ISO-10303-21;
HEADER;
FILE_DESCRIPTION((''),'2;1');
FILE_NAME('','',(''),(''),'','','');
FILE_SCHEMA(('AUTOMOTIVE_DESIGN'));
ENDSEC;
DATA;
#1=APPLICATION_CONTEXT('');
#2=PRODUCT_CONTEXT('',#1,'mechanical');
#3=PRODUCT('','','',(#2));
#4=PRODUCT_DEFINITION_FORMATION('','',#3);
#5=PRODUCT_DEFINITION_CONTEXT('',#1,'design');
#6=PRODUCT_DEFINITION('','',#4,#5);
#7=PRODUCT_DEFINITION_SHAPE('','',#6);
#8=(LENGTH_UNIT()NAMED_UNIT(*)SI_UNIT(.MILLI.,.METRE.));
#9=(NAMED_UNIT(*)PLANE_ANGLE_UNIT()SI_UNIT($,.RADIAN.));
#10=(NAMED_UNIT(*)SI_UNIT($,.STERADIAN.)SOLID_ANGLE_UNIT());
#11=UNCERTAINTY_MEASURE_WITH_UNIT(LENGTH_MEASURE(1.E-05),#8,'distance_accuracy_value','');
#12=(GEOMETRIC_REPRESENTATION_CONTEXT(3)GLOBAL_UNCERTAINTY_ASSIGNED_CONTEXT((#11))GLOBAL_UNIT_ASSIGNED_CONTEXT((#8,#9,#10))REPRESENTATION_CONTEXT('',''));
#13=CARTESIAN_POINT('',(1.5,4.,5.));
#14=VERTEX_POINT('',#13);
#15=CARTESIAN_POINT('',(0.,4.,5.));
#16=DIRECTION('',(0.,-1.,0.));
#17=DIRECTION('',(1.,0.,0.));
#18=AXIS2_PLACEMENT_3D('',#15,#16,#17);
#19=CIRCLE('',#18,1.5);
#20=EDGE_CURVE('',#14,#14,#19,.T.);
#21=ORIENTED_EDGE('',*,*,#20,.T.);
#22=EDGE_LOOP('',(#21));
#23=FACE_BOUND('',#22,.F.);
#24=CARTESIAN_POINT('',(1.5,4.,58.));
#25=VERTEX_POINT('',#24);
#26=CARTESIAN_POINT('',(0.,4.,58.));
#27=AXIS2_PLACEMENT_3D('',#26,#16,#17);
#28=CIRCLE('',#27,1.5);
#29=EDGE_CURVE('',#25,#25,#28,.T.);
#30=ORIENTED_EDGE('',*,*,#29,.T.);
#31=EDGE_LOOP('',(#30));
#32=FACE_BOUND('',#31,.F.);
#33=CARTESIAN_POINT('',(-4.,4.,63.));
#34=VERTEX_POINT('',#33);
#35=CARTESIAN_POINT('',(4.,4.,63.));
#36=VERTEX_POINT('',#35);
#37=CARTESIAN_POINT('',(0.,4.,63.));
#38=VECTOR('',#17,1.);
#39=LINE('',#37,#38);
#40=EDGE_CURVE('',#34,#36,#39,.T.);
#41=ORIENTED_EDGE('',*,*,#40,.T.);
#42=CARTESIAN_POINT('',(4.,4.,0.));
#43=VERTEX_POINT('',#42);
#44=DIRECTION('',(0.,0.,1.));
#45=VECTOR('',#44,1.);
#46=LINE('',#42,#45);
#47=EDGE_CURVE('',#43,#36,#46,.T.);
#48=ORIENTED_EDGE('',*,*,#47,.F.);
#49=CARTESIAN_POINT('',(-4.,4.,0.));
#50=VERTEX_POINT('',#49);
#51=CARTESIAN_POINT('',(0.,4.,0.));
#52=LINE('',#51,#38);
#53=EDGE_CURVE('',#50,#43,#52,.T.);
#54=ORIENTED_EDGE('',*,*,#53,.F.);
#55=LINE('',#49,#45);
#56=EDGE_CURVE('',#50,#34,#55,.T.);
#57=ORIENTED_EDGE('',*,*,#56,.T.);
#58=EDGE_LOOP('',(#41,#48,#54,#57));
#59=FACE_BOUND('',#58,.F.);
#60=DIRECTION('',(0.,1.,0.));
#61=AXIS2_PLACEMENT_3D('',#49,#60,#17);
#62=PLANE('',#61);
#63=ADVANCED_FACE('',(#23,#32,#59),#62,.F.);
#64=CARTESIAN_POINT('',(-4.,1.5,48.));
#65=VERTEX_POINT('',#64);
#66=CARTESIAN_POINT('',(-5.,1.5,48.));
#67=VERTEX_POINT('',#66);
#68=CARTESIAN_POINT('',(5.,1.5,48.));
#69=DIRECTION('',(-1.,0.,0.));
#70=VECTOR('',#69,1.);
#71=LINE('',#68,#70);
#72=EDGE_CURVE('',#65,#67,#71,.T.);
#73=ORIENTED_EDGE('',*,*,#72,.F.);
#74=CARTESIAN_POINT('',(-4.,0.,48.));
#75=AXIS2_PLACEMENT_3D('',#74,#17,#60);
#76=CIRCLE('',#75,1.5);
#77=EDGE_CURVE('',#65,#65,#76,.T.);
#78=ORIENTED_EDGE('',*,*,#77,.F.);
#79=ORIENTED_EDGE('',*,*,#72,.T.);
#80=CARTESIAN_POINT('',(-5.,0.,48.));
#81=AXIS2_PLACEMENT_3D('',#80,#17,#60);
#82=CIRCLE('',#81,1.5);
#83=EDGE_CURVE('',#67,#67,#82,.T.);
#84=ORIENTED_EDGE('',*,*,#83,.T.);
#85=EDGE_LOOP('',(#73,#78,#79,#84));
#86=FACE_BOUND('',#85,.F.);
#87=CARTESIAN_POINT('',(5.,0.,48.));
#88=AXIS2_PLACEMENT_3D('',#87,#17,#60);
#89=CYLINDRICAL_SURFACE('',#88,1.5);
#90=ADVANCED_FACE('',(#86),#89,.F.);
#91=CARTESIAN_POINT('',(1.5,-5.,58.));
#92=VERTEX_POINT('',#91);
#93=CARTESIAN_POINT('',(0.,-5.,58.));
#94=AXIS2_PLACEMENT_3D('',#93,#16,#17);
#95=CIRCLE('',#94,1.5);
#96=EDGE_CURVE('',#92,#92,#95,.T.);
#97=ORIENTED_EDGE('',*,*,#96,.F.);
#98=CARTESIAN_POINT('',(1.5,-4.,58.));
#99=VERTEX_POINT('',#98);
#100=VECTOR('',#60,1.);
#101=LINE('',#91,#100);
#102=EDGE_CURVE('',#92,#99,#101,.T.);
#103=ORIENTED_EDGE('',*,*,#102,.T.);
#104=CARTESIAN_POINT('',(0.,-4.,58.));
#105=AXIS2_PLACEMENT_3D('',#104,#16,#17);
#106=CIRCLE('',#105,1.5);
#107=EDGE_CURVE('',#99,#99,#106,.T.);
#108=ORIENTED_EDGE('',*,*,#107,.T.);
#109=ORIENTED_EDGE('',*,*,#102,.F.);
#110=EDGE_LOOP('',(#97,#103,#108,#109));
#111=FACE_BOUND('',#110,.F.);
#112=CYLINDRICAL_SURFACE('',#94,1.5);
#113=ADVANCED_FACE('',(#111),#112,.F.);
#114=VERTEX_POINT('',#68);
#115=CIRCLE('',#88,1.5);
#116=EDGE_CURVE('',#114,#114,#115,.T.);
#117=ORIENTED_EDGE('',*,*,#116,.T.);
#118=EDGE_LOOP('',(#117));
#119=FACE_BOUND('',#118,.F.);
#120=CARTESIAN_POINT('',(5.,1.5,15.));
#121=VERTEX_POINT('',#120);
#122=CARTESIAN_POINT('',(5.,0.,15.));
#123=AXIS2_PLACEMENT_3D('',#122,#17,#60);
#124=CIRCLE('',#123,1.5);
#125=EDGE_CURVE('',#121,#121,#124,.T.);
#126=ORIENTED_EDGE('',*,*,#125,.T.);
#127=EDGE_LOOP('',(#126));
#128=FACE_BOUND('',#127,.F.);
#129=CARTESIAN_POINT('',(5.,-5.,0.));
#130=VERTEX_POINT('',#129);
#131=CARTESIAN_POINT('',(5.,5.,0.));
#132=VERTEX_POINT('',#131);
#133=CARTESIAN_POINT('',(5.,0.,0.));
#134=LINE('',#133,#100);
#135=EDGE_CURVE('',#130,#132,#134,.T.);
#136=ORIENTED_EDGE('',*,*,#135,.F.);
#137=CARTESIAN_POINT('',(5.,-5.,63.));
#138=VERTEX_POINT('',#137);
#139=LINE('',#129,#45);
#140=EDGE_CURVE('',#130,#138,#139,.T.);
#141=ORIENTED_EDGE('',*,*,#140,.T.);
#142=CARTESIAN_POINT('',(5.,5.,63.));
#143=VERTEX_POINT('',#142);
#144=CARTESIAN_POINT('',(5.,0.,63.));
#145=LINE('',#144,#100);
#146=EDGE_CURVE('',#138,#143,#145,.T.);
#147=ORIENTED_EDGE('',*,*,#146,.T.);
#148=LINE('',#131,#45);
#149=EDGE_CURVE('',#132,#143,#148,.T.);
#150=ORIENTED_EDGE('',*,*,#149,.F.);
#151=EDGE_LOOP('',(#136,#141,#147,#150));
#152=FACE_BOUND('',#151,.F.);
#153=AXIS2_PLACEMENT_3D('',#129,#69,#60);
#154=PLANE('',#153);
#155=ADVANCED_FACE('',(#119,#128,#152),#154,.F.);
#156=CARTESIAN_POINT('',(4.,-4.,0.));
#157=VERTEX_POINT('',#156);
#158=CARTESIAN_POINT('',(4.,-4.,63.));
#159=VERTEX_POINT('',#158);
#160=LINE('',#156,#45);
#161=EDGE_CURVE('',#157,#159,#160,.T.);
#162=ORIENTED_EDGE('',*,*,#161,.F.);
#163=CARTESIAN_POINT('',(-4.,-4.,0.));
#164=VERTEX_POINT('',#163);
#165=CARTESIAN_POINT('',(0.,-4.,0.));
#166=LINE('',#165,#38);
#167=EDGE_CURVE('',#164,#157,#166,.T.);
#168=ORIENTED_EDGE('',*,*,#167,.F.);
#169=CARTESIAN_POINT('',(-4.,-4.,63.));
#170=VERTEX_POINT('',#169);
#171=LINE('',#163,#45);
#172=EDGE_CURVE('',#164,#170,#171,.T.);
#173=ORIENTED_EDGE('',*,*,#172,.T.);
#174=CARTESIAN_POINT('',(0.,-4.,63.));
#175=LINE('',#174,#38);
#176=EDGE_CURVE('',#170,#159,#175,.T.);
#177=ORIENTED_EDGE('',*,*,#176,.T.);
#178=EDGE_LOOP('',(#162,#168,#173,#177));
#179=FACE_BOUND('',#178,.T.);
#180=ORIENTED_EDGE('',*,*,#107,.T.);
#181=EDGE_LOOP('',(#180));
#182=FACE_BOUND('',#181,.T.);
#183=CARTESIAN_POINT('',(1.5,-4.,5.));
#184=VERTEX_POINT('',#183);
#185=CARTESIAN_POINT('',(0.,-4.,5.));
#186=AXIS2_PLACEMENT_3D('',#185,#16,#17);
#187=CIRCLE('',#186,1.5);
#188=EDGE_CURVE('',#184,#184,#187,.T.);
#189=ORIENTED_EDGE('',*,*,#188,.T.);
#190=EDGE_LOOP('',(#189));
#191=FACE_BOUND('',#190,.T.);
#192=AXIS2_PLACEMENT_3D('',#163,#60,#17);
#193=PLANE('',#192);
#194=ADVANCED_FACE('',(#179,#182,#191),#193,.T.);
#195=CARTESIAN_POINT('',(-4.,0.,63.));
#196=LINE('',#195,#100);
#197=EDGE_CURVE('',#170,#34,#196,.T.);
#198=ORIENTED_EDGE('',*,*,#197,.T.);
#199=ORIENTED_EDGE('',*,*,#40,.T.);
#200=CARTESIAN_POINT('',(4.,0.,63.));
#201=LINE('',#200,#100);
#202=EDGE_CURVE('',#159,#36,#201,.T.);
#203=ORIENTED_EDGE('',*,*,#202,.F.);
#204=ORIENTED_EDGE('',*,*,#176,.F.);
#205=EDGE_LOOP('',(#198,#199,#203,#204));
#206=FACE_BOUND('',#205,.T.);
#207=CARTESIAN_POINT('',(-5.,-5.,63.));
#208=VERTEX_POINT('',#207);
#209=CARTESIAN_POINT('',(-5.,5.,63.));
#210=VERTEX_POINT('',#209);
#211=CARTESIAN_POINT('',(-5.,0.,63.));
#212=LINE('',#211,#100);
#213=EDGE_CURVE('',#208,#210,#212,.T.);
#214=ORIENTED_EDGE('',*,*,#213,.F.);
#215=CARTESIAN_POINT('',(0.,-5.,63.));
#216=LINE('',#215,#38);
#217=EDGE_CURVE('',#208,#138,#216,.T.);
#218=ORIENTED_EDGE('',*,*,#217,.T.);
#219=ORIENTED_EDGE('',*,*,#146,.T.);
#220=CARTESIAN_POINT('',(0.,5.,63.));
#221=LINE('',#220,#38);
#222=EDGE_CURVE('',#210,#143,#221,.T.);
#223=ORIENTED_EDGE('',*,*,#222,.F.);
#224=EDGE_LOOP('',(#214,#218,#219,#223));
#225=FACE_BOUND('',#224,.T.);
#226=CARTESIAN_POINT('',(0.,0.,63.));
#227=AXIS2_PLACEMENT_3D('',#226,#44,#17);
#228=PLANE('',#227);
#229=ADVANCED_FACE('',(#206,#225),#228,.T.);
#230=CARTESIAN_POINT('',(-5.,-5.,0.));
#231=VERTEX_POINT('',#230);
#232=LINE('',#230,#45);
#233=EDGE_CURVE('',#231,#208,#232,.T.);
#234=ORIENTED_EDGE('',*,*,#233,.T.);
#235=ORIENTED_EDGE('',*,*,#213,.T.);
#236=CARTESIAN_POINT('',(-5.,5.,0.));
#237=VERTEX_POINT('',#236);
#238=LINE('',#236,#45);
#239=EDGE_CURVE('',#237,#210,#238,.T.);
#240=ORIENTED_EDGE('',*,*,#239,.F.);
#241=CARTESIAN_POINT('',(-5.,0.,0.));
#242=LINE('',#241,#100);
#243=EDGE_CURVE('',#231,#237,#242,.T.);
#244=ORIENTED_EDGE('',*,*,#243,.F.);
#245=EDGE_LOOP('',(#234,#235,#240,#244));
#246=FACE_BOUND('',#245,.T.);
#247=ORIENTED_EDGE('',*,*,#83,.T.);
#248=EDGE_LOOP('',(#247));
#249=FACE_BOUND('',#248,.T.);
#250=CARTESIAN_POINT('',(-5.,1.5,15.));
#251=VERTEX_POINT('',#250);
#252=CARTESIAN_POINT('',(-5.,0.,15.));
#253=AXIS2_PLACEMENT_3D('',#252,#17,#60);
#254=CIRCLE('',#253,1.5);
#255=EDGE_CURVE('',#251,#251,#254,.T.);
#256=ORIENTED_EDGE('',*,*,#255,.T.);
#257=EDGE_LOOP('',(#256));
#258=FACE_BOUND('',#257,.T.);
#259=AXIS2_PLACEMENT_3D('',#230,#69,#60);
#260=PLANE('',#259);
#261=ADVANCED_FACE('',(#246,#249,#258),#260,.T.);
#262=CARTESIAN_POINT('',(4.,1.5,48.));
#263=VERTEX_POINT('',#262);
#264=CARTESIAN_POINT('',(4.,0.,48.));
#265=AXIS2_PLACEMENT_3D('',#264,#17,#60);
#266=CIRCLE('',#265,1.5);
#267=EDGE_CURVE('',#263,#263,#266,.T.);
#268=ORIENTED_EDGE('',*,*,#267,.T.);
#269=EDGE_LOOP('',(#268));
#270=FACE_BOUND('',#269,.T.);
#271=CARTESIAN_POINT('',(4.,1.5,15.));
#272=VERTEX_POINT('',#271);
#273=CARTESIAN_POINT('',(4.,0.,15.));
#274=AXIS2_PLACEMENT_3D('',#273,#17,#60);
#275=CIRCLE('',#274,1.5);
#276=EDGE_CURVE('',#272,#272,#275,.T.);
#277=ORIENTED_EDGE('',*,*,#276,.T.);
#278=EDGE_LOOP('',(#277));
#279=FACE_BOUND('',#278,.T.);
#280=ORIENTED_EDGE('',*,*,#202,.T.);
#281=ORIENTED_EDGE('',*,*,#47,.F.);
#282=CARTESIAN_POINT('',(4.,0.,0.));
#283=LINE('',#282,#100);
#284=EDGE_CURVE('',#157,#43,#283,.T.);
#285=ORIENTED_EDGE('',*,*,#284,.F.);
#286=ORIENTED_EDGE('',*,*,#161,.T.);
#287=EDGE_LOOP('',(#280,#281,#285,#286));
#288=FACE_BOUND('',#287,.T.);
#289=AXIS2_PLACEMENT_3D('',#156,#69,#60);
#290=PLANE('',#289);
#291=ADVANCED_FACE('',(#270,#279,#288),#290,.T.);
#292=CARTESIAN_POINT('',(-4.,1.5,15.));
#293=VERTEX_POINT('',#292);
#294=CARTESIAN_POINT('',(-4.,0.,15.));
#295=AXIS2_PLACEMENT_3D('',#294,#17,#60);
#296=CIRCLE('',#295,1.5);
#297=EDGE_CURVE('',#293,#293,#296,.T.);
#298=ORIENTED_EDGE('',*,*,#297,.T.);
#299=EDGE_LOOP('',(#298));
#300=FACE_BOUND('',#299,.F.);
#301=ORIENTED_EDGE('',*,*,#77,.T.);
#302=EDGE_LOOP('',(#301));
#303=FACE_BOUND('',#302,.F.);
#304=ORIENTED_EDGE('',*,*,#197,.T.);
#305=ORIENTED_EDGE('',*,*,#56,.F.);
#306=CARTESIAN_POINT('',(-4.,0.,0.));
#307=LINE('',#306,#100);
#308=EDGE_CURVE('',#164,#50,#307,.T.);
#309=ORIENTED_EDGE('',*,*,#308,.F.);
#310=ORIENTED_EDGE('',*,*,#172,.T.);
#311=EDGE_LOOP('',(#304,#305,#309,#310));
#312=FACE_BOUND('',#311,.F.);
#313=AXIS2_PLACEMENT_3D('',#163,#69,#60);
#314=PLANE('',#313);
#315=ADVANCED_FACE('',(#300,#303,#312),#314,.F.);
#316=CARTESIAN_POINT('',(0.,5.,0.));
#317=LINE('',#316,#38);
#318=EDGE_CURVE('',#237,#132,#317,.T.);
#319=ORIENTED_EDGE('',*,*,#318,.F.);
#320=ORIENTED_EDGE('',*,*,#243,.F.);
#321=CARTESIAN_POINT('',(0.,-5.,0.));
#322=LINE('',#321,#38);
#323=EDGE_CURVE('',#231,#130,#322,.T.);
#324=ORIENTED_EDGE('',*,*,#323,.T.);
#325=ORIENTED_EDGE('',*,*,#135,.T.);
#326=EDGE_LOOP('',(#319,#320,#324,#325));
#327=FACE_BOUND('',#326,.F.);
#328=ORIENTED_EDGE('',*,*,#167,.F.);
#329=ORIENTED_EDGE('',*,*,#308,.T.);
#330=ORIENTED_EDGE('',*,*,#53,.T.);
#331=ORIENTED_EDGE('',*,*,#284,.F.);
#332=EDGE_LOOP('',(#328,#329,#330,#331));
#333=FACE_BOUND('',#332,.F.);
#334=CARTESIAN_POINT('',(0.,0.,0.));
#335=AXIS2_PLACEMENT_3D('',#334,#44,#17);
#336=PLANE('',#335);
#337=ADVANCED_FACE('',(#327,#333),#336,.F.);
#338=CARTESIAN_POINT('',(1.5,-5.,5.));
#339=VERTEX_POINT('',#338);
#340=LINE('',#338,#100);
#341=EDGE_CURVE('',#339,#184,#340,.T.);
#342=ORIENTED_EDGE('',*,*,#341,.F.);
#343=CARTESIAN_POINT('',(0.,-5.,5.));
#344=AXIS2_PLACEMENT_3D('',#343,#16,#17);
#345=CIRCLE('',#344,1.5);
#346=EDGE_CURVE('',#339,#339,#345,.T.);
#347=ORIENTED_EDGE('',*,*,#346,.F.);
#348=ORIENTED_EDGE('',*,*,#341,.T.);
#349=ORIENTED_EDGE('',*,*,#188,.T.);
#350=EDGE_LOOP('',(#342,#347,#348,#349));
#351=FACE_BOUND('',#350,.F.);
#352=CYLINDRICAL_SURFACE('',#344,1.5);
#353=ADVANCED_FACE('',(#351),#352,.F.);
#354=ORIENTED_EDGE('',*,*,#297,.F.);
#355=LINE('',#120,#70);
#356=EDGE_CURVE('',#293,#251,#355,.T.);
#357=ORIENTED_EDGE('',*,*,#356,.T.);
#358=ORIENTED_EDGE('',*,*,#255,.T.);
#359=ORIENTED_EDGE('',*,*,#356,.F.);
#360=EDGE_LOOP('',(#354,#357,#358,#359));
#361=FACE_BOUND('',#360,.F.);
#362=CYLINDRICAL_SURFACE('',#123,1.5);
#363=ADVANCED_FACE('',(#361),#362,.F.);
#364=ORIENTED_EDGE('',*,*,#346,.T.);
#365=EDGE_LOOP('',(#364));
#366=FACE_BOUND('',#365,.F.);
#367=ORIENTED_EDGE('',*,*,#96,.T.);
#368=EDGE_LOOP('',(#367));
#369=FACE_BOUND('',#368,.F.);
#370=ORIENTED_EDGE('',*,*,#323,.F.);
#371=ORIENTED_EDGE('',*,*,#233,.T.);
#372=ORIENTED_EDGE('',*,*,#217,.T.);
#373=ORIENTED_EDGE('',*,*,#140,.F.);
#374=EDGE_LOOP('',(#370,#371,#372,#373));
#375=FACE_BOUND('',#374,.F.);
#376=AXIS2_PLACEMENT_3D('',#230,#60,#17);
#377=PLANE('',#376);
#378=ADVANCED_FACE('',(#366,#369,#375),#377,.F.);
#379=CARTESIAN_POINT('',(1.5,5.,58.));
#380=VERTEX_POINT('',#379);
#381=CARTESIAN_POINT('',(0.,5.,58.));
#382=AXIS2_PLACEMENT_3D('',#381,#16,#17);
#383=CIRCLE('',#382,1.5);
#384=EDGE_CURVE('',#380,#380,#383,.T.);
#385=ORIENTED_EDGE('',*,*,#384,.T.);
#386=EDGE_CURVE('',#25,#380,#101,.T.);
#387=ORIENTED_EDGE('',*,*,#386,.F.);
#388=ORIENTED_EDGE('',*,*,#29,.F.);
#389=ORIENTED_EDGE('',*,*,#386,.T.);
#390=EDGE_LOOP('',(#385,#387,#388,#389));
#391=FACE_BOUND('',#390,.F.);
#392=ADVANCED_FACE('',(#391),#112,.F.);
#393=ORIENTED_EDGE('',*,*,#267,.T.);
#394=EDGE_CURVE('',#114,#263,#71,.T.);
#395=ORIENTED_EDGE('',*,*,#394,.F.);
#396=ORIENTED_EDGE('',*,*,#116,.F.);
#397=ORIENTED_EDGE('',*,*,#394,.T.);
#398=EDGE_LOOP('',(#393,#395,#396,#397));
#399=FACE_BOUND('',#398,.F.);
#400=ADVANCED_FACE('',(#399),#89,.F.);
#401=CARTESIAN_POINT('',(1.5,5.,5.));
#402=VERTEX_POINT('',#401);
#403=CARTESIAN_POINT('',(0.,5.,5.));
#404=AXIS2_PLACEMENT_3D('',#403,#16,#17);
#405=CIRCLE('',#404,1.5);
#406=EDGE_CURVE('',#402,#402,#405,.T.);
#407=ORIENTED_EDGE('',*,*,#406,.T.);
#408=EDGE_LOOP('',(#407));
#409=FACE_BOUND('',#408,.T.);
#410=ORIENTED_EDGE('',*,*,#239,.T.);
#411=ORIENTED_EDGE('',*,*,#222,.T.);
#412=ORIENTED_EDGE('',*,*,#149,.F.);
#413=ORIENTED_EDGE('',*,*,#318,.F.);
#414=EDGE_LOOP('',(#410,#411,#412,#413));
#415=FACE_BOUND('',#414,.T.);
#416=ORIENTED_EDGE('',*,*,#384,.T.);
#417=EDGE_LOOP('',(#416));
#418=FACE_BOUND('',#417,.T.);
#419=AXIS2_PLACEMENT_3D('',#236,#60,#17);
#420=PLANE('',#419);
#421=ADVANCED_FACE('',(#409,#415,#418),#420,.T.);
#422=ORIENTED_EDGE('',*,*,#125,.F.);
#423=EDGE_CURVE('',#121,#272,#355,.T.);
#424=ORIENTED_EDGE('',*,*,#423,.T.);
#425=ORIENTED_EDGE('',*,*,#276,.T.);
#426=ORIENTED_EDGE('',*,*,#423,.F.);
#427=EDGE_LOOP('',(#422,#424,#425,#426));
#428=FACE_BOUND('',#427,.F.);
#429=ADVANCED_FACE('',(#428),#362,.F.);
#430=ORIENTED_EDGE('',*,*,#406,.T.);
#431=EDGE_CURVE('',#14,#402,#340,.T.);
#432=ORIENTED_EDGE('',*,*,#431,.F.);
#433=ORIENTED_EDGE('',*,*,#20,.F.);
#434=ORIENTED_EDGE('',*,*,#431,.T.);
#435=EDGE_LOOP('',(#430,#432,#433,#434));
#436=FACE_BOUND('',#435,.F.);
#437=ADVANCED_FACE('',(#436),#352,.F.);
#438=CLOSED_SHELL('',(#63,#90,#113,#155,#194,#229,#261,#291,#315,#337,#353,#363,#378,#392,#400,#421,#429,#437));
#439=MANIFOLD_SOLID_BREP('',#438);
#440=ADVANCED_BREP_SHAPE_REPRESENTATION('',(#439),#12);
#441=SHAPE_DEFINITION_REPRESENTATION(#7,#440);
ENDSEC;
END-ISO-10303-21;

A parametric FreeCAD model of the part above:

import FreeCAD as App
import Part
import Sketcher

V = App.Vector
Q = App.Units.Quantity


def add_polygon(sketch, points):
    """Adds a closed chain of lines whose ends are joined by coincident constraints."""
    first, n = sketch.GeometryCount, len(points)
    for a, b in zip(points, points[1:] + points[:1]):
        sketch.addGeometry(Part.LineSegment(App.Vector(*a, 0), App.Vector(*b, 0)), False)
    for i in range(n):
        sketch.addConstraint(Sketcher.Constraint("Coincident", first + i, 2, first + (i + 1) % n, 1))

doc = App.newDocument("Part")
body = doc.addObject("PartDesign::Body", "Body")

# Sketch on XY plane
sketch1 = body.newObject("Sketcher::SketchObject", "Sketch")
sketch1.AttachmentSupport = (doc.getObject("XY_Plane"), [""])
sketch1.MapMode = "FlatFace"
add_polygon(sketch1, [(-5, 5), (-5, -5), (5, -5), (5, 5)])  # lines 0-3
add_polygon(sketch1, [(4, -4), (-4, -4), (-4, 4), (4, 4)])  # lines 4-7
sketch1.addConstraint([
    Sketcher.Constraint("Vertical", 0),
    Sketcher.Constraint("Horizontal", 1),
    Sketcher.Constraint("Vertical", 2),
    Sketcher.Constraint("Horizontal", 3),
    Sketcher.Constraint("Horizontal", 4),
    Sketcher.Constraint("Vertical", 5),
    Sketcher.Constraint("Horizontal", 6),
    Sketcher.Constraint("Vertical", 7),
    Sketcher.Constraint("Symmetric", 0, 2, 2, 2, -1, 1),
    Sketcher.Constraint("Symmetric", 4, 2, 6, 2, -1, 1),
    Sketcher.Constraint("Equal", 3, 0),
    Sketcher.Constraint("Equal", 6, 5),
    Sketcher.Constraint("DistanceX", 1, 1, 1, 2, Q("10 mm")),
    Sketcher.Constraint("DistanceX", 4, 2, 4, 1, Q("8 mm")),
])
pad1 = body.newObject("PartDesign::Pad", "Pad")
pad1.Profile = sketch1
pad1.Length = 63

# Sketch on XZ plane
sketch2 = body.newObject("Sketcher::SketchObject", "Sketch001")
sketch2.AttachmentSupport = (doc.getObject("XZ_Plane"), [""])
sketch2.MapMode = "FlatFace"
sketch2.AttachmentOffset = App.Placement(V(0, 0, 5), App.Rotation())
sketch2.addGeometry([
    Part.Circle(V(0, 5, 0), V(0, 0, 1), 1.5),
    Part.Circle(V(0, 58, 0), V(0, 0, 1), 1.5),
], False)
sketch2.addConstraint([
    Sketcher.Constraint("Equal", 0, 1),
    Sketcher.Constraint("PointOnObject", 0, 3, -2),
    Sketcher.Constraint("PointOnObject", 1, 3, -2),
    Sketcher.Constraint("Diameter", 0, Q("3 mm")),
    Sketcher.Constraint("DistanceY", -1, 1, 0, 3, Q("5 mm")),
    Sketcher.Constraint("DistanceY", -1, 1, 1, 3, Q("58 mm")),
])
pocket1 = body.newObject("PartDesign::Pocket", "Pocket")
pocket1.Profile = sketch2
pocket1.Length = 25

# Sketch on YZ plane
sketch3 = body.newObject("Sketcher::SketchObject", "Sketch002")
sketch3.AttachmentSupport = (doc.getObject("YZ_Plane"), [""])
sketch3.MapMode = "FlatFace"
sketch3.AttachmentOffset = App.Placement(V(0, 0, 5), App.Rotation())
sketch3.addGeometry([
    Part.Circle(V(0, 48, 0), V(0, 0, 1), 1.5),
    Part.Circle(V(0, 15, 0), V(0, 0, 1), 1.5),
], False)
sketch3.addConstraint([
    Sketcher.Constraint("Equal", 0, 1),
    Sketcher.Constraint("PointOnObject", 0, 3, -2),
    Sketcher.Constraint("PointOnObject", 1, 3, -2),
    Sketcher.Constraint("Diameter", 0, Q("3 mm")),
    Sketcher.Constraint("DistanceY", -1, 1, 0, 3, Q("48 mm")),
    Sketcher.Constraint("DistanceY", -1, 1, 1, 3, Q("15 mm")),
])
pocket2 = body.newObject("PartDesign::Pocket", "Pocket001")
pocket2.Profile = sketch3
pocket2.Length = 25

doc.recompute()
